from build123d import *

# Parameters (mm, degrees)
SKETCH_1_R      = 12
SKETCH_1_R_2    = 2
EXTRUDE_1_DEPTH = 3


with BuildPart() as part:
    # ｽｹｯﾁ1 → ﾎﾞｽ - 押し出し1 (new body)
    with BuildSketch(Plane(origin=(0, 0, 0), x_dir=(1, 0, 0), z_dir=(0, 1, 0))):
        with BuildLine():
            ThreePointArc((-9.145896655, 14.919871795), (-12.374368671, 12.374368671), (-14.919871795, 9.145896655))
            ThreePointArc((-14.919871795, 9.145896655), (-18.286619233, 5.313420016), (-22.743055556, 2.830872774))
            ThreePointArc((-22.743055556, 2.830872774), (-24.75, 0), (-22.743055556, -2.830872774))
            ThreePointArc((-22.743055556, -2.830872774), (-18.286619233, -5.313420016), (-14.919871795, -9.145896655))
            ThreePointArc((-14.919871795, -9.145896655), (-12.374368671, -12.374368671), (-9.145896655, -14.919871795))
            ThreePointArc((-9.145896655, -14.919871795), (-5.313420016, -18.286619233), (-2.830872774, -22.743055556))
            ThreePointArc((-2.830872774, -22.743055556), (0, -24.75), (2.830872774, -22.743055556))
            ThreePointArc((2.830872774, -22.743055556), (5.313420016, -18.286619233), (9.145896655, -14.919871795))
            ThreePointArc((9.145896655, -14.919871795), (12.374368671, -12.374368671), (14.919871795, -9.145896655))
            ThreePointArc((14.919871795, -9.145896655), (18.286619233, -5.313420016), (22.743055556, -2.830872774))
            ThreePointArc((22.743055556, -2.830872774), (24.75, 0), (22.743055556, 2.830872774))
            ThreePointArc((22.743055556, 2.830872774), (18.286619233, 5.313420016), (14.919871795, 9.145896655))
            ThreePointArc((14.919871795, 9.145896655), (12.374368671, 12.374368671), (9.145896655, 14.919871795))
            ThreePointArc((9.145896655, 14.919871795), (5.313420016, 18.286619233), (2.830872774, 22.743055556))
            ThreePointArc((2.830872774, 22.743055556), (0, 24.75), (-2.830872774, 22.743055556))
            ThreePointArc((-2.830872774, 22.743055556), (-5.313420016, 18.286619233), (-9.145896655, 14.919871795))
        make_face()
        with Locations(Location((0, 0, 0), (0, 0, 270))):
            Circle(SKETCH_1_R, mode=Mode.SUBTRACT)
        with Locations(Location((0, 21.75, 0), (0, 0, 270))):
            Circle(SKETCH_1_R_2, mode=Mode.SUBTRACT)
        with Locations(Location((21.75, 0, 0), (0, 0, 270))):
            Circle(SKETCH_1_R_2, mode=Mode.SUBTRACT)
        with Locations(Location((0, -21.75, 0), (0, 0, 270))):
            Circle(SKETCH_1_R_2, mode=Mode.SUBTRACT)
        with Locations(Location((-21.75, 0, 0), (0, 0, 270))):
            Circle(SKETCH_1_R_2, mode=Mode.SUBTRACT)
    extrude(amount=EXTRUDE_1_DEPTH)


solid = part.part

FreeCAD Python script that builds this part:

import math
import FreeCAD as App
import Part
import Sketcher
from FreeCAD import Vector

doc = App.newDocument("Part")
body = doc.addObject("PartDesign::Body", "Body")

sketch1 = doc.addObject("Sketcher::SketchObject", "Sketch")
body.addObject(sketch1)
sketch1.AttachmentSupport = (doc.XZ_Plane, [""])
sketch1.MapMode = "FlatFace"
sketch1.addGeometry([
    Part.ArcOfCircle(Part.Circle(Vector(0, 0, 0), Vector(0, 0, 1), 17.5), math.radians(-148.49166), math.radians(-121.50834)),
    Part.ArcOfCircle(Part.Circle(Vector(-27.708333, -16.985237, 0), Vector(0, 0, 1), 15), math.radians(31.50834), math.radians(70.669393)),
    Part.ArcOfCircle(Part.Circle(Vector(-21.75, 0, 0), Vector(0, 0, 1), 3), math.radians(109.330607), math.radians(250.669393)),
    Part.ArcOfCircle(Part.Circle(Vector(-27.708333, 16.985237, 0), Vector(0, 0, 1), 15), math.radians(-70.669393), math.radians(-31.50834)),
    Part.ArcOfCircle(Part.Circle(Vector(0, 0, 0), Vector(0, 0, 1), 17.5), math.radians(121.50834), math.radians(148.49166)),
    Part.ArcOfCircle(Part.Circle(Vector(-16.985237, 27.708333, 0), Vector(0, 0, 1), 15), math.radians(-58.49166), math.radians(-19.330607)),
    Part.ArcOfCircle(Part.Circle(Vector(0, 21.75, 0), Vector(0, 0, 1), 3), math.radians(19.330607), math.radians(160.669393)),
    Part.ArcOfCircle(Part.Circle(Vector(16.985237, 27.708333, 0), Vector(0, 0, 1), 15), math.radians(-160.669393), math.radians(-121.50834)),
    Part.ArcOfCircle(Part.Circle(Vector(0, 0, 0), Vector(0, 0, 1), 17.5), math.radians(31.50834), math.radians(58.49166)),
    Part.ArcOfCircle(Part.Circle(Vector(27.708333, 16.985237, 0), Vector(0, 0, 1), 15), math.radians(-148.49166), math.radians(-109.330607)),
    Part.ArcOfCircle(Part.Circle(Vector(21.75, 0, 0), Vector(0, 0, 1), 3), math.radians(-70.669393), math.radians(70.669393)),
    Part.ArcOfCircle(Part.Circle(Vector(27.708333, -16.985237, 0), Vector(0, 0, 1), 15), math.radians(109.330607), math.radians(148.49166)),
    Part.ArcOfCircle(Part.Circle(Vector(0, 0, 0), Vector(0, 0, 1), 17.5), math.radians(-58.49166), math.radians(-31.50834)),
    Part.ArcOfCircle(Part.Circle(Vector(16.985237, -27.708333, 0), Vector(0, 0, 1), 15), math.radians(121.50834), math.radians(160.669393)),
    Part.ArcOfCircle(Part.Circle(Vector(0, -21.75, 0), Vector(0, 0, 1), 3), math.radians(-160.669393), math.radians(-19.330607)),
    Part.ArcOfCircle(Part.Circle(Vector(-16.985237, -27.708333, 0), Vector(0, 0, 1), 15), math.radians(19.330607), math.radians(58.49166)),
    Part.Circle(Vector(0, 21.75, 0), Vector(0, 0, 1), 2),
    Part.Circle(Vector(-21.75, 0, 0), Vector(0, 0, 1), 2),
    Part.Circle(Vector(0, 0, 0), Vector(0, 0, 1), 12),
    Part.Circle(Vector(21.75, 0, 0), Vector(0, 0, 1), 2),
    Part.Circle(Vector(0, -21.75, 0), Vector(0, 0, 1), 2),
], False)
sketch1.addConstraint([
    Sketcher.Constraint("Tangent", 0, 1, 1, 1),
    Sketcher.Constraint("Tangent", 1, 2, 2, 2),
    Sketcher.Constraint("Tangent", 2, 1, 3, 1),
    Sketcher.Constraint("Tangent", 3, 2, 4, 2),
    Sketcher.Constraint("Tangent", 4, 1, 5, 1),
    Sketcher.Constraint("Tangent", 5, 2, 6, 2),
    Sketcher.Constraint("Tangent", 6, 1, 7, 1),
    Sketcher.Constraint("Tangent", 7, 2, 8, 2),
    Sketcher.Constraint("Tangent", 8, 1, 9, 1),
    Sketcher.Constraint("Tangent", 9, 2, 10, 2),
    Sketcher.Constraint("Tangent", 10, 1, 11, 1),
    Sketcher.Constraint("Tangent", 11, 2, 12, 2),
    Sketcher.Constraint("Tangent", 12, 1, 13, 1),
    Sketcher.Constraint("Tangent", 13, 2, 14, 2),
    Sketcher.Constraint("Tangent", 14, 1, 15, 1),
    Sketcher.Constraint("Tangent", 15, 2, 0, 2),
    Sketcher.Constraint("Coincident", 0, 3, -1, 1),
    Sketcher.Constraint("Coincident", 4, 3, -1, 1),
    Sketcher.Constraint("Coincident", 8, 3, -1, 1),
    Sketcher.Constraint("Coincident", 12, 3, -1, 1),
    Sketcher.Constraint("Coincident", 18, 3, -1, 1),
    Sketcher.Constraint("Coincident", 16, 3, 6, 3),
    Sketcher.Constraint("Coincident", 17, 3, 2, 3),
    Sketcher.Constraint("Coincident", 19, 3, 10, 3),
    Sketcher.Constraint("Coincident", 20, 3, 14, 3),
    Sketcher.Constraint("Equal", 1, 3),
    Sketcher.Constraint("Equal", 0, 4),
    Sketcher.Constraint("Equal", 3, 5),
    Sketcher.Constraint("Equal", 2, 6),
    Sketcher.Constraint("Equal", 5, 7),
    Sketcher.Constraint("Equal", 4, 8),
    Sketcher.Constraint("Equal", 7, 9),
    Sketcher.Constraint("Equal", 6, 10),
    Sketcher.Constraint("Equal", 9, 11),
    Sketcher.Constraint("Equal", 8, 12),
    Sketcher.Constraint("Equal", 11, 13),
    Sketcher.Constraint("Equal", 10, 14),
    Sketcher.Constraint("Equal", 13, 15),
    Sketcher.Constraint("Equal", 16, 17),
    Sketcher.Constraint("Equal", 17, 19),
    Sketcher.Constraint("Equal", 19, 20),
    Sketcher.Constraint("Symmetric", 2, 3, 10, 3, -1, 1),
    Sketcher.Constraint("Symmetric", 6, 3, 14, 3, -1, 1),
    Sketcher.Constraint("PointOnObject", 2, 3, -1),
    Sketcher.Constraint("PointOnObject", 6, 3, -2),
    Sketcher.Constraint("Diameter", 16, 4.0),
    Sketcher.Constraint("Diameter", 18, 24.0),
    Sketcher.Constraint("Radius", 1, 15.0),
    Sketcher.Constraint("Radius", 2, 3.0),
    Sketcher.Constraint("Radius", 0, 17.5),
    Sketcher.Constraint("DistanceX", 2, 3, -1, 1, 21.75),
    Sketcher.Constraint("DistanceY", -1, 1, 6, 3, 21.75),
])
pad1 = doc.addObject("PartDesign::Pad", "Pad")
body.addObject(pad1)
pad1.Profile = sketch1
pad1.Length = 3
pad1.Reversed = True

doc.recompute()
